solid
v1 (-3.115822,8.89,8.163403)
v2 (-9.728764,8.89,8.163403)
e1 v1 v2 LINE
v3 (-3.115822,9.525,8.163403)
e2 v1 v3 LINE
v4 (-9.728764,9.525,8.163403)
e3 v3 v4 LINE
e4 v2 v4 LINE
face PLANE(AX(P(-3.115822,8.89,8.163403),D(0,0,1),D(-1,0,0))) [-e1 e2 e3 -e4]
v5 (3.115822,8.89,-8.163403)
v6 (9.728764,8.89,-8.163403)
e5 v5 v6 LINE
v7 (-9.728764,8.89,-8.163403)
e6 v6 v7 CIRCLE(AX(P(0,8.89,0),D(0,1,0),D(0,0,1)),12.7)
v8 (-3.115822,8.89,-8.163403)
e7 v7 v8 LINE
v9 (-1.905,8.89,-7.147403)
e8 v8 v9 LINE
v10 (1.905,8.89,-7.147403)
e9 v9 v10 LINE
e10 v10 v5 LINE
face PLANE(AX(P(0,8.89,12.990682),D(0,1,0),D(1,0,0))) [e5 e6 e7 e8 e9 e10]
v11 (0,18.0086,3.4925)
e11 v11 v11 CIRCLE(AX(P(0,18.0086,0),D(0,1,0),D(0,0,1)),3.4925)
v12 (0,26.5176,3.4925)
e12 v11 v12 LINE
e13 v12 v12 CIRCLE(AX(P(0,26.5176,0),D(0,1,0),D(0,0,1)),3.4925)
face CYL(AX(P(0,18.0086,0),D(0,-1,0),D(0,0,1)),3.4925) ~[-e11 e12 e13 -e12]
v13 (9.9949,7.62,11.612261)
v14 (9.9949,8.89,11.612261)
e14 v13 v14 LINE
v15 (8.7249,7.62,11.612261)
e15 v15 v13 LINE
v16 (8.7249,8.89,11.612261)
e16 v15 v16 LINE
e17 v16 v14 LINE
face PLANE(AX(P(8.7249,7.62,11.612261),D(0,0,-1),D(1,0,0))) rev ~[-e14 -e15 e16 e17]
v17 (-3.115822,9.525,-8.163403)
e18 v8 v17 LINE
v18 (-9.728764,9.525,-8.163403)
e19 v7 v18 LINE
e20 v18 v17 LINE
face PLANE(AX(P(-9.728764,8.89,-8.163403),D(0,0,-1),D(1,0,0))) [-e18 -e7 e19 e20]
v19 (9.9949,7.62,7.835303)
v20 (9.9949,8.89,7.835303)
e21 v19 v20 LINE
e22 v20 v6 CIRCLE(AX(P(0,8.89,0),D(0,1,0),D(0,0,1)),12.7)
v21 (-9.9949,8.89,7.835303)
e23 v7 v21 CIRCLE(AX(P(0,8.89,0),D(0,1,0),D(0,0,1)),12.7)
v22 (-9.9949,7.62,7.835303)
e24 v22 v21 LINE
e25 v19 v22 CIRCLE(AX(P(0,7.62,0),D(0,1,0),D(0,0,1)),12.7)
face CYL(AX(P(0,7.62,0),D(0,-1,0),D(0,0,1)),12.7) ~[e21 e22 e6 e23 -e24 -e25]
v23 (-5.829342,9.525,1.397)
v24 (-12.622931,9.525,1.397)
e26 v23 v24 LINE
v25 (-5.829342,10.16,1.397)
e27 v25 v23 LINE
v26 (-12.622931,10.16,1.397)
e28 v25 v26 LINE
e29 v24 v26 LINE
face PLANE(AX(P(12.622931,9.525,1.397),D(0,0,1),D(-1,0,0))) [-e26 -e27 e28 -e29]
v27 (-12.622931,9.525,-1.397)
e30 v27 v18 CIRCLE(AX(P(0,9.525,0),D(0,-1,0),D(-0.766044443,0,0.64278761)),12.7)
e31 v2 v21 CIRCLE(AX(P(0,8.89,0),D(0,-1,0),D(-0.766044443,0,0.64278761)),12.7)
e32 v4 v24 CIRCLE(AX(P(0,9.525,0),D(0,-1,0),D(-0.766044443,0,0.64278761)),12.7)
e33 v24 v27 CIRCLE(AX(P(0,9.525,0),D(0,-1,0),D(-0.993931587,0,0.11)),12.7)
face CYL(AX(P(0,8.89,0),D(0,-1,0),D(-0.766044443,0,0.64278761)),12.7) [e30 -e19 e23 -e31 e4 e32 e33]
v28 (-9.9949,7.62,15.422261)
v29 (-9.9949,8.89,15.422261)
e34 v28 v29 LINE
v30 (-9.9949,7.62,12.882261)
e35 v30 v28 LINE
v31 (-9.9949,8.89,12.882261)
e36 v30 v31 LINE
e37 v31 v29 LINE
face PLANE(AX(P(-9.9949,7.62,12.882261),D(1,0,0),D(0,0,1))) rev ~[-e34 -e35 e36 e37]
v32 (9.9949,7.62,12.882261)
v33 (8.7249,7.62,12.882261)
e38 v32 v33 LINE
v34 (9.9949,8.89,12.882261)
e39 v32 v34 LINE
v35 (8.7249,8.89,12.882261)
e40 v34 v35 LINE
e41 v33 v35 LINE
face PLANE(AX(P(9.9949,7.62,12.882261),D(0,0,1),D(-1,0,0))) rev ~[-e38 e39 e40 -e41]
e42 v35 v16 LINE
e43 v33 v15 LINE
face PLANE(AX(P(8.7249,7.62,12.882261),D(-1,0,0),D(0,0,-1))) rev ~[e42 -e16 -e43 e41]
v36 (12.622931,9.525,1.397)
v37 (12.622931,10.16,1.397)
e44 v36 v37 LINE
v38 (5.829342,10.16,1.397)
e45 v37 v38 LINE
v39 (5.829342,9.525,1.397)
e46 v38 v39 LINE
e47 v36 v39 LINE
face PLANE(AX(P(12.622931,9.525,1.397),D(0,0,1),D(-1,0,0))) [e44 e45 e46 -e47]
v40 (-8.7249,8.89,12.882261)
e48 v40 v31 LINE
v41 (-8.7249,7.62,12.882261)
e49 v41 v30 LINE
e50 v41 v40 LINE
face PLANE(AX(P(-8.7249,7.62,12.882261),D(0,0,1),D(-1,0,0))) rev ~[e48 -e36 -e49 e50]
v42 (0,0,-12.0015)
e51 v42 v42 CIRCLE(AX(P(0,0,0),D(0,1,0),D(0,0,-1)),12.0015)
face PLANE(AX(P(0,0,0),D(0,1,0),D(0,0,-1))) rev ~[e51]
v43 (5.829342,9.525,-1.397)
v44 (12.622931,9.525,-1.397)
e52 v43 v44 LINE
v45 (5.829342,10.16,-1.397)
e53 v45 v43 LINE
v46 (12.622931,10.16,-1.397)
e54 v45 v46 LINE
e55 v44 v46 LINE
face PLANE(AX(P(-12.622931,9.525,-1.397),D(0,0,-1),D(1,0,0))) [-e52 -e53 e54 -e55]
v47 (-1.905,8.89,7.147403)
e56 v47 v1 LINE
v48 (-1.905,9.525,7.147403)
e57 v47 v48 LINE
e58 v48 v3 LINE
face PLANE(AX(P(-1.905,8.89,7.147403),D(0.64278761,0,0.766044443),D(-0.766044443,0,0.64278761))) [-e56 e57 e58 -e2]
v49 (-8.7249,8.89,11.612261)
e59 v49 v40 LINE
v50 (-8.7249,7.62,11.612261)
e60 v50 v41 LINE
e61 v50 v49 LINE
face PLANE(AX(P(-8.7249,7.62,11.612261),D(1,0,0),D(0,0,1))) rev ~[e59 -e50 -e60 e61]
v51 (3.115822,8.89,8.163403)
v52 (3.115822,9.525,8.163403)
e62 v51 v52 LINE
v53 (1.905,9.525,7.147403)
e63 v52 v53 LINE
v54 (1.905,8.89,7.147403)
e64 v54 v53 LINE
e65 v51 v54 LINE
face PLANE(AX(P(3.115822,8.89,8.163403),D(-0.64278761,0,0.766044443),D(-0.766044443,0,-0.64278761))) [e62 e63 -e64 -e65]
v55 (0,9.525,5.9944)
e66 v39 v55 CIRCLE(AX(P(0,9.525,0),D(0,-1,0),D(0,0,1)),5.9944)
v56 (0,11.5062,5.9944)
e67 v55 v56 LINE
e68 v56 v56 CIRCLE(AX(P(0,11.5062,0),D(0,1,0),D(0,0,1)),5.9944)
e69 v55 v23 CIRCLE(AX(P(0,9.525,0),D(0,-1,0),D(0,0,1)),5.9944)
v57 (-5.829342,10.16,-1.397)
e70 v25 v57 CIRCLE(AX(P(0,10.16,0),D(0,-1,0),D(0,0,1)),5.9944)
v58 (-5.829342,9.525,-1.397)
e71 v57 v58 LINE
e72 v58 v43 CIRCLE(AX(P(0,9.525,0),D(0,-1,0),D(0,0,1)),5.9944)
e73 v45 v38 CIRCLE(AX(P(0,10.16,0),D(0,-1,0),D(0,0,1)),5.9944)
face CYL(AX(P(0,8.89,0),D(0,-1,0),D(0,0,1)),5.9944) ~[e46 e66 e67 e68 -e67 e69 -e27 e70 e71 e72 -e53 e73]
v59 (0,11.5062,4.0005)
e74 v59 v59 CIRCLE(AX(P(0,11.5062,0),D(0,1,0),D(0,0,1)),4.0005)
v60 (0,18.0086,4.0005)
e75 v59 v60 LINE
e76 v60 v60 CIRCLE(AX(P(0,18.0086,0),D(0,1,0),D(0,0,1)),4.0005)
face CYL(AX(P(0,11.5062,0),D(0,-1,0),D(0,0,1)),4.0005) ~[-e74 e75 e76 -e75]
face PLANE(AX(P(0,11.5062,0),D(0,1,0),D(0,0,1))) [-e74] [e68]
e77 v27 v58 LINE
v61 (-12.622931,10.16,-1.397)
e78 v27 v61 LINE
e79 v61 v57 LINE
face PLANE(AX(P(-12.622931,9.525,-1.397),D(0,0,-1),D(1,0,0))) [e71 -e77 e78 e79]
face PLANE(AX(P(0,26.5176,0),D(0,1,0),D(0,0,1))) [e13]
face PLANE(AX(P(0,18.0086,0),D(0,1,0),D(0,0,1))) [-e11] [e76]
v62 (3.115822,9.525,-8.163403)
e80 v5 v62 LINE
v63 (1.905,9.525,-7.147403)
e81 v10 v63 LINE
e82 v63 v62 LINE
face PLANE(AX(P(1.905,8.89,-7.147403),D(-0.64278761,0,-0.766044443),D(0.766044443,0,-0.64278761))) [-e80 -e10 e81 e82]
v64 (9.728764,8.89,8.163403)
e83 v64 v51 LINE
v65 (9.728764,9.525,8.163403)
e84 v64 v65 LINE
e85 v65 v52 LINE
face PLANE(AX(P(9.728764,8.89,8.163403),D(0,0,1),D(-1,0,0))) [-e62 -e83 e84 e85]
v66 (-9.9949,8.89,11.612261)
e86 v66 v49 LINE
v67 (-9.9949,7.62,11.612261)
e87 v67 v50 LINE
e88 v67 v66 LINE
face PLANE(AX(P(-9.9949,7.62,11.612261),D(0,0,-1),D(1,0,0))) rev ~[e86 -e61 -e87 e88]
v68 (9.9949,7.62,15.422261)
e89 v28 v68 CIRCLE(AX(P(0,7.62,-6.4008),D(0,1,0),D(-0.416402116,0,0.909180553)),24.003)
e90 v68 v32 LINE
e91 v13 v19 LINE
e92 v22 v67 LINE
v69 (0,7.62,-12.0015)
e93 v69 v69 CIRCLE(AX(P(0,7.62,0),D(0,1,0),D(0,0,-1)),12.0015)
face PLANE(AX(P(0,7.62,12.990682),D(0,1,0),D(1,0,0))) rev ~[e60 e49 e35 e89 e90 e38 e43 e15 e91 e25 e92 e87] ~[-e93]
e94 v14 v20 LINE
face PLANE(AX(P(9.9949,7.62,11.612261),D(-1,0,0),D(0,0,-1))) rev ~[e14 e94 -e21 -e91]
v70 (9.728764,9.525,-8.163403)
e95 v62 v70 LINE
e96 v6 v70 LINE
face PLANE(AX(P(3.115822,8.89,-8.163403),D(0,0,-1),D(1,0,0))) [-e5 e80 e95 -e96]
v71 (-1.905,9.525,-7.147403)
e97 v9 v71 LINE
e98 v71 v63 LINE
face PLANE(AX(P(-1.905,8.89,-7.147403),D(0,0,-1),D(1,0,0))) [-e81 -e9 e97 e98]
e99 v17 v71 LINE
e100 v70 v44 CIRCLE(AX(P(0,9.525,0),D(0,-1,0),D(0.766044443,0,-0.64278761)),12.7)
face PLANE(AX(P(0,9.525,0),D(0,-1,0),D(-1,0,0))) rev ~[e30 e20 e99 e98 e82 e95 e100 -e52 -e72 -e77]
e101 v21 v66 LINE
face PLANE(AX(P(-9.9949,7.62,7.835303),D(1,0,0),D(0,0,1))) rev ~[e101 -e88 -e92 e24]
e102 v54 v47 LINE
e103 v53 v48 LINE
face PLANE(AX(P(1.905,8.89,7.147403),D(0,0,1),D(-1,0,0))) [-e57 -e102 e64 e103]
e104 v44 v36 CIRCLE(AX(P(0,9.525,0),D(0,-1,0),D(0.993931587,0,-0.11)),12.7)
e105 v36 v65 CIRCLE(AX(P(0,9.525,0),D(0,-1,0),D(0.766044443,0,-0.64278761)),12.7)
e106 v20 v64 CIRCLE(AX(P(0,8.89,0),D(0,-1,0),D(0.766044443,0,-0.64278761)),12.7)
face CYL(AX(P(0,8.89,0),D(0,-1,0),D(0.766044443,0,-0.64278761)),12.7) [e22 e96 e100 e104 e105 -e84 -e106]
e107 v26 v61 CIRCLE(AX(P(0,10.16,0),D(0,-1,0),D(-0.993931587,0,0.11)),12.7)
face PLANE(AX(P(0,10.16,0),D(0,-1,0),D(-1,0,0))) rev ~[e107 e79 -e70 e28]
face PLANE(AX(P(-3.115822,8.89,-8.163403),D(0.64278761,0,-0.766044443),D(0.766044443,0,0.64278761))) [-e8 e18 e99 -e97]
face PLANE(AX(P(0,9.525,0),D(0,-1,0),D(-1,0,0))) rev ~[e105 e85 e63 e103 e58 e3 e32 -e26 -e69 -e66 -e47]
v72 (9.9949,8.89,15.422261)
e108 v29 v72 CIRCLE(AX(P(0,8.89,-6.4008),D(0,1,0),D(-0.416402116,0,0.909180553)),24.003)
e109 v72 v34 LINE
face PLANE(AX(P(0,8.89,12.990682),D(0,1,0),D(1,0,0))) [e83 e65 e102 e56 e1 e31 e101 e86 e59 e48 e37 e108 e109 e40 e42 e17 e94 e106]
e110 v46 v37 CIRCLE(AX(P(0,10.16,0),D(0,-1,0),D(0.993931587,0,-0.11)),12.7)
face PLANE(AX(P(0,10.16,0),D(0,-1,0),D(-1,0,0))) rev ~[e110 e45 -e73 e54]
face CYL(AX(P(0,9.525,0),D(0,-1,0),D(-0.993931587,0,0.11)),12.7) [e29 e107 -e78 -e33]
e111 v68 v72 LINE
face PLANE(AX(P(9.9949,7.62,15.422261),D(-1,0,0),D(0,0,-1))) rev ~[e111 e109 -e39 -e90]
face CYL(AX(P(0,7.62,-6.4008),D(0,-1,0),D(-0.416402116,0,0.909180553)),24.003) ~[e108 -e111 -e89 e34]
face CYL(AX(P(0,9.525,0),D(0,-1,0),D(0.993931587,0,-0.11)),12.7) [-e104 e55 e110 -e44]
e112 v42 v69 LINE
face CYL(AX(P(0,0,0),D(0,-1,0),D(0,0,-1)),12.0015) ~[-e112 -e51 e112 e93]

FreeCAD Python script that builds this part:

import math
import FreeCAD as App
import Part
import Sketcher

V = App.Vector
Q = App.Units.Quantity

doc = App.newDocument("Part")
body = doc.addObject("PartDesign::Body", "Body")

# Sketch on XZ plane
sketch1 = body.newObject("Sketcher::SketchObject", "Sketch")
sketch1.AttachmentSupport = (doc.getObject("XZ_Plane"), [""])
sketch1.MapMode = "FlatFace"
sketch1.addGeometry(Part.Circle(V(0, 0, 0), V(0, 0, 1), 12), False)
sketch1.addConstraint(Sketcher.Constraint("Coincident", 0, 3, -1, 1))
sketch1.addConstraint(Sketcher.Constraint("Diameter", 0, Q("0.945 in")))
pad1 = body.newObject("PartDesign::Pad", "Pad")
pad1.Profile = sketch1
pad1.Length = Q("0.3 in")
pad1.Reversed = True

# Sketch on XZ plane
sketch2 = body.newObject("Sketcher::SketchObject", "Sketch001")
sketch2.AttachmentSupport = (doc.getObject("XZ_Plane"), [""])
sketch2.MapMode = "FlatFace"
sketch2.AttachmentOffset = App.Placement(V(0, 0, -0.3 * 25.4), App.Rotation())
sketch2.addGeometry(Part.Circle(V(0, 0, 0), V(0, 0, 1), 13), False)
sketch2.addConstraint(Sketcher.Constraint("Coincident", 0, 3, -1, 1))
sketch2.addConstraint(Sketcher.Constraint("Diameter", 0, Q("1 in")))
pad2 = body.newObject("PartDesign::Pad", "Pad001")
pad2.Profile = sketch2
pad2.Length = Q("0.05 in")
pad2.Reversed = True

# Sketch on XZ plane
sketch3 = body.newObject("Sketcher::SketchObject", "Sketch002")
sketch3.AttachmentSupport = (doc.getObject("XZ_Plane"), [""])
sketch3.MapMode = "FlatFace"
sketch3.AttachmentOffset = App.Placement(V(0, 0, -0.3 * 25.4), App.Rotation())
sketch3.addGeometry(Part.ArcOfCircle(Part.Circle(V(0, 0, 0), V(0, 0, 1), 12.7), math.radians(38), math.radians(142)), False)
sketch3.addGeometry(Part.LineSegment(V(-10, 7.8, 0), V(-10, 11.6, 0)), False)
sketch3.addGeometry(Part.LineSegment(V(-10, 11.6, 0), V(-8.7, 11.6, 0)), False)
sketch3.addGeometry(Part.LineSegment(V(-8.7, 11.6, 0), V(-8.7, 12.9, 0)), False)
sketch3.addGeometry(Part.LineSegment(V(-8.7, 12.9, 0), V(-10, 12.9, 0)), False)
sketch3.addGeometry(Part.LineSegment(V(-10, 12.9, 0), V(-10, 15.4, 0)), False)
sketch3.addGeometry(Part.ArcOfCircle(Part.Circle(V(0, -6.4, 0), V(0, 0, 1), 24), math.radians(65), math.radians(115)), False)
sketch3.addGeometry(Part.LineSegment(V(10, 15.4, 0), V(10, 12.9, 0)), False)
sketch3.addGeometry(Part.LineSegment(V(10, 12.9, 0), V(8.7, 12.9, 0)), False)
sketch3.addGeometry(Part.LineSegment(V(8.7, 12.9, 0), V(8.7, 11.6, 0)), False)
sketch3.addGeometry(Part.LineSegment(V(8.7, 11.6, 0), V(10, 11.6, 0)), False)
sketch3.addGeometry(Part.LineSegment(V(10, 11.6, 0), V(10, 7.8, 0)), False)
sketch3.addConstraint(Sketcher.Constraint("Coincident", 0, 2, 1, 1))
sketch3.addConstraint(Sketcher.Constraint("Coincident", 1, 2, 2, 1))
sketch3.addConstraint(Sketcher.Constraint("Coincident", 2, 2, 3, 1))
sketch3.addConstraint(Sketcher.Constraint("Coincident", 3, 2, 4, 1))
sketch3.addConstraint(Sketcher.Constraint("Coincident", 4, 2, 5, 1))
sketch3.addConstraint(Sketcher.Constraint("Coincident", 5, 2, 6, 2))
sketch3.addConstraint(Sketcher.Constraint("Coincident", 6, 1, 7, 1))
sketch3.addConstraint(Sketcher.Constraint("Coincident", 7, 2, 8, 1))
sketch3.addConstraint(Sketcher.Constraint("Coincident", 8, 2, 9, 1))
sketch3.addConstraint(Sketcher.Constraint("Coincident", 9, 2, 10, 1))
sketch3.addConstraint(Sketcher.Constraint("Coincident", 10, 2, 11, 1))
sketch3.addConstraint(Sketcher.Constraint("Coincident", 11, 2, 0, 1))
sketch3.addConstraint(Sketcher.Constraint("Vertical", 1))
sketch3.addConstraint(Sketcher.Constraint("Horizontal", 2))
sketch3.addConstraint(Sketcher.Constraint("Vertical", 3))
sketch3.addConstraint(Sketcher.Constraint("Horizontal", 4))
sketch3.addConstraint(Sketcher.Constraint("Vertical", 5))
sketch3.addConstraint(Sketcher.Constraint("Vertical", 7))
sketch3.addConstraint(Sketcher.Constraint("Horizontal", 8))
sketch3.addConstraint(Sketcher.Constraint("Vertical", 9))
sketch3.addConstraint(Sketcher.Constraint("Horizontal", 10))
sketch3.addConstraint(Sketcher.Constraint("Vertical", 11))
sketch3.addConstraint(Sketcher.Constraint("Coincident", 0, 3, -1, 1))
sketch3.addConstraint(Sketcher.Constraint("Symmetric", 5, 2, 6, 1, -2))
sketch3.addConstraint(Sketcher.Constraint("Symmetric", 3, 2, 8, 2, -2))
sketch3.addConstraint(Sketcher.Constraint("Symmetric", 1, 2, 10, 2, -2))
sketch3.addConstraint(Sketcher.Constraint("Vertical", 1, 2, 4, 2))
sketch3.addConstraint(Sketcher.Constraint("Equal", 10, 3))
sketch3.addConstraint(Sketcher.Constraint("Radius", 0, Q("0.5 in")))
sketch3.addConstraint(Sketcher.Constraint("DistanceY", 5, 1, 5, 2, Q("0.1 in")))
sketch3.addConstraint(Sketcher.Constraint("Radius", 6, Q("0.945 in")))
sketch3.addConstraint(Sketcher.Constraint("DistanceX", 2, 1, 2, 2, Q("0.05 in")))
sketch3.addConstraint(Sketcher.Constraint("DistanceY", 6, 3, -1, 1, Q("0.252 in")))
sketch3.addConstraint(Sketcher.Constraint("DistanceX", 3, 2, 6, 1, Q("0.737 in")))
pad3 = body.newObject("PartDesign::Pad", "Pad002")
pad3.Profile = sketch3
pad3.Length = Q("0.05 in")
pad3.Reversed = True

# Sketch on XZ plane
sketch4 = body.newObject("Sketcher::SketchObject", "Sketch003")
sketch4.AttachmentSupport = (doc.getObject("XZ_Plane"), [""])
sketch4.MapMode = "FlatFace"
sketch4.AttachmentOffset = App.Placement(V(0, 0, -0.35 * 25.4), App.Rotation())
sketch4.addGeometry(Part.Circle(V(0, 0, 0), V(0, 0, 1), 6), False)
sketch4.addConstraint(Sketcher.Constraint("Coincident", 0, 3, -1, 1))
sketch4.addConstraint(Sketcher.Constraint("Diameter", 0, Q("0.472 in")))
pad4 = body.newObject("PartDesign::Pad", "Pad003")
pad4.Profile = sketch4
pad4.Length = Q("0.103 in")
pad4.Reversed = True

# Sketch on XZ plane
sketch5 = body.newObject("Sketcher::SketchObject", "Sketch004")
sketch5.AttachmentSupport = (doc.getObject("XZ_Plane"), [""])
sketch5.MapMode = "FlatFace"
sketch5.AttachmentOffset = App.Placement(V(0, 0, -0.453 * 25.4), App.Rotation())
sketch5.addGeometry(Part.Circle(V(0, 0, 0), V(0, 0, 1), 4), False)
sketch5.addConstraint(Sketcher.Constraint("Coincident", 0, 3, -1, 1))
sketch5.addConstraint(Sketcher.Constraint("Diameter", 0, Q("0.315 in")))
pad5 = body.newObject("PartDesign::Pad", "Pad004")
pad5.Profile = sketch5
pad5.Length = Q("0.256 in")
pad5.Reversed = True

# Sketch on XZ plane
sketch6 = body.newObject("Sketcher::SketchObject", "Sketch005")
sketch6.AttachmentSupport = (doc.getObject("XZ_Plane"), [""])
sketch6.MapMode = "FlatFace"
sketch6.AttachmentOffset = App.Placement(V(0, 0, -0.709 * 25.4), App.Rotation())
sketch6.addGeometry(Part.Circle(V(0, 0, 0), V(0, 0, 1), 3.5), False)
sketch6.addConstraint(Sketcher.Constraint("Coincident", 0, 3, -1, 1))
sketch6.addConstraint(Sketcher.Constraint("Diameter", 0, Q("0.275 in")))
pad6 = body.newObject("PartDesign::Pad", "Pad005")
pad6.Profile = sketch6
pad6.Length = Q("0.335 in")
pad6.Reversed = True

# Sketch on XZ plane
sketch7 = body.newObject("Sketcher::SketchObject", "Sketch006")
sketch7.AttachmentSupport = (doc.getObject("XZ_Plane"), [""])
sketch7.MapMode = "FlatFace"
sketch7.AttachmentOffset = App.Placement(V(0, 0, -0.35 * 25.4), App.Rotation())
sketch7.addGeometry(Part.LineSegment(V(-3.1, -8.2, 0), V(-9.7, -8.2, 0)), False)
sketch7.addGeometry(Part.ArcOfCircle(Part.Circle(V(0, 0, 0), V(0, 0, 1), 12.7), math.radians(140), math.radians(220)), False)
sketch7.addGeometry(Part.LineSegment(V(-9.7, 8.2, 0), V(-3.1, 8.2, 0)), False)
sketch7.addGeometry(Part.LineSegment(V(-3.1, 8.2, 0), V(-1.9, 7.1, 0)), False)
sketch7.addGeometry(Part.LineSegment(V(-1.9, 7.1, 0), V(1.9, 7.1, 0)), False)
sketch7.addGeometry(Part.LineSegment(V(1.9, 7.1, 0), V(3.1, 8.2, 0)), False)
sketch7.addGeometry(Part.LineSegment(V(3.1, 8.2, 0), V(9.7, 8.2, 0)), False)
sketch7.addGeometry(Part.ArcOfCircle(Part.Circle(V(0, 0, 0), V(0, 0, 1), 12.7), math.radians(-40), math.radians(40)), False)
sketch7.addGeometry(Part.LineSegment(V(9.7, -8.2, 0), V(3.1, -8.2, 0)), False)
sketch7.addGeometry(Part.LineSegment(V(3.1, -8.2, 0), V(1.9, -7.1, 0)), False)
sketch7.addGeometry(Part.LineSegment(V(1.9, -7.1, 0), V(-1.9, -7.1, 0)), False)
sketch7.addGeometry(Part.LineSegment(V(-1.9, -7.1, 0), V(-3.1, -8.2, 0)), False)
sketch7.addConstraint(Sketcher.Constraint("Coincident", 0, 2, 1, 2))
sketch7.addConstraint(Sketcher.Constraint("Coincident", 1, 1, 2, 1))
sketch7.addConstraint(Sketcher.Constraint("Coincident", 2, 2, 3, 1))
sketch7.addConstraint(Sketcher.Constraint("Coincident", 3, 2, 4, 1))
sketch7.addConstraint(Sketcher.Constraint("Coincident", 4, 2, 5, 1))
sketch7.addConstraint(Sketcher.Constraint("Coincident", 5, 2, 6, 1))
sketch7.addConstraint(Sketcher.Constraint("Coincident", 6, 2, 7, 2))
sketch7.addConstraint(Sketcher.Constraint("Coincident", 7, 1, 8, 1))
sketch7.addConstraint(Sketcher.Constraint("Coincident", 8, 2, 9, 1))
sketch7.addConstraint(Sketcher.Constraint("Coincident", 9, 2, 10, 1))
sketch7.addConstraint(Sketcher.Constraint("Coincident", 10, 2, 11, 1))
sketch7.addConstraint(Sketcher.Constraint("Coincident", 11, 2, 0, 1))
sketch7.addConstraint(Sketcher.Constraint("Horizontal", 0))
sketch7.addConstraint(Sketcher.Constraint("Horizontal", 2))
sketch7.addConstraint(Sketcher.Constraint("Horizontal", 4))
sketch7.addConstraint(Sketcher.Constraint("Horizontal", 6))
sketch7.addConstraint(Sketcher.Constraint("Horizontal", 8))
sketch7.addConstraint(Sketcher.Constraint("Horizontal", 10))
sketch7.addConstraint(Sketcher.Constraint("Coincident", 1, 3, -1, 1))
sketch7.addConstraint(Sketcher.Constraint("Coincident", 7, 3, -1, 1))
sketch7.addConstraint(Sketcher.Constraint("Equal", 1, 7))
sketch7.addConstraint(Sketcher.Constraint("Symmetric", 2, 2, 8, 2, -1, 1))
sketch7.addConstraint(Sketcher.Constraint("Symmetric", 3, 2, 9, 2, -1, 1))
sketch7.addConstraint(Sketcher.Constraint("Symmetric", 5, 2, 11, 2, -1, 1))
sketch7.addConstraint(Sketcher.Constraint("Symmetric", 2, 2, 5, 2, -2))
sketch7.addConstraint(Sketcher.Constraint("Parallel", 5, 11))
sketch7.addConstraint(Sketcher.Constraint("Vertical", 4, 2, 9, 2))
sketch7.addConstraint(Sketcher.Constraint("Radius", 1, Q("0.5 in")))
sketch7.addConstraint(Sketcher.Constraint("Angle", 3, Q("-40 deg")))
sketch7.addConstraint(Sketcher.Constraint("DistanceX", 4, 1, 4, 2, Q("0.15 in")))
sketch7.addConstraint(Sketcher.Constraint("DistanceY", 3, 2, 2, 2, Q("0.04 in")))
sketch7.addConstraint(Sketcher.Constraint("DistanceX", 0, 2, 0, 1, Q("6.612943 mm")))
pad7 = body.newObject("PartDesign::Pad", "Pad006")
pad7.Profile = sketch7
pad7.Length = Q("0.025 in")
pad7.Reversed = True

# Sketch on XZ plane
sketch8 = body.newObject("Sketcher::SketchObject", "Sketch007")
sketch8.AttachmentSupport = (doc.getObject("XZ_Plane"), [""])
sketch8.MapMode = "FlatFace"
sketch8.AttachmentOffset = App.Placement(V(0, 0, -0.375 * 25.4), App.Rotation())
sketch8.addGeometry(Part.LineSegment(V(12.6, -1.4, 0), V(-12.6, -1.4, 0)), False)
sketch8.addGeometry(Part.ArcOfCircle(Part.Circle(V(0, 0, 0), V(0, 0, 1), 12.7), math.radians(173.68), math.radians(186.32)), False)
sketch8.addGeometry(Part.LineSegment(V(-12.6, 1.4, 0), V(12.6, 1.4, 0)), False)
sketch8.addGeometry(Part.ArcOfCircle(Part.Circle(V(0, 0, 0), V(0, 0, 1), 12.7), math.radians(-6.32), math.radians(6.32)), False)
sketch8.addConstraint(Sketcher.Constraint("Coincident", 0, 2, 1, 2))
sketch8.addConstraint(Sketcher.Constraint("Coincident", 1, 1, 2, 1))
sketch8.addConstraint(Sketcher.Constraint("Coincident", 2, 2, 3, 2))
sketch8.addConstraint(Sketcher.Constraint("Coincident", 3, 1, 0, 1))
sketch8.addConstraint(Sketcher.Constraint("Horizontal", 0))
sketch8.addConstraint(Sketcher.Constraint("Horizontal", 2))
sketch8.addConstraint(Sketcher.Constraint("Coincident", 1, 3, -1, 1))
sketch8.addConstraint(Sketcher.Constraint("Coincident", 3, 3, -1, 1))
sketch8.addConstraint(Sketcher.Constraint("Equal", 1, 3))
sketch8.addConstraint(Sketcher.Constraint("Vertical", 0, 2, 1, 1))
sketch8.addConstraint(Sketcher.Constraint("Radius", 1, Q("0.5 in")))
sketch8.addConstraint(Sketcher.Constraint("DistanceY", 0, 2, 1, 1, Q("0.11 in")))
pad8 = body.newObject("PartDesign::Pad", "Pad007")
pad8.Profile = sketch8
pad8.Length = Q("0.025 in")
pad8.Reversed = True

doc.recompute()
